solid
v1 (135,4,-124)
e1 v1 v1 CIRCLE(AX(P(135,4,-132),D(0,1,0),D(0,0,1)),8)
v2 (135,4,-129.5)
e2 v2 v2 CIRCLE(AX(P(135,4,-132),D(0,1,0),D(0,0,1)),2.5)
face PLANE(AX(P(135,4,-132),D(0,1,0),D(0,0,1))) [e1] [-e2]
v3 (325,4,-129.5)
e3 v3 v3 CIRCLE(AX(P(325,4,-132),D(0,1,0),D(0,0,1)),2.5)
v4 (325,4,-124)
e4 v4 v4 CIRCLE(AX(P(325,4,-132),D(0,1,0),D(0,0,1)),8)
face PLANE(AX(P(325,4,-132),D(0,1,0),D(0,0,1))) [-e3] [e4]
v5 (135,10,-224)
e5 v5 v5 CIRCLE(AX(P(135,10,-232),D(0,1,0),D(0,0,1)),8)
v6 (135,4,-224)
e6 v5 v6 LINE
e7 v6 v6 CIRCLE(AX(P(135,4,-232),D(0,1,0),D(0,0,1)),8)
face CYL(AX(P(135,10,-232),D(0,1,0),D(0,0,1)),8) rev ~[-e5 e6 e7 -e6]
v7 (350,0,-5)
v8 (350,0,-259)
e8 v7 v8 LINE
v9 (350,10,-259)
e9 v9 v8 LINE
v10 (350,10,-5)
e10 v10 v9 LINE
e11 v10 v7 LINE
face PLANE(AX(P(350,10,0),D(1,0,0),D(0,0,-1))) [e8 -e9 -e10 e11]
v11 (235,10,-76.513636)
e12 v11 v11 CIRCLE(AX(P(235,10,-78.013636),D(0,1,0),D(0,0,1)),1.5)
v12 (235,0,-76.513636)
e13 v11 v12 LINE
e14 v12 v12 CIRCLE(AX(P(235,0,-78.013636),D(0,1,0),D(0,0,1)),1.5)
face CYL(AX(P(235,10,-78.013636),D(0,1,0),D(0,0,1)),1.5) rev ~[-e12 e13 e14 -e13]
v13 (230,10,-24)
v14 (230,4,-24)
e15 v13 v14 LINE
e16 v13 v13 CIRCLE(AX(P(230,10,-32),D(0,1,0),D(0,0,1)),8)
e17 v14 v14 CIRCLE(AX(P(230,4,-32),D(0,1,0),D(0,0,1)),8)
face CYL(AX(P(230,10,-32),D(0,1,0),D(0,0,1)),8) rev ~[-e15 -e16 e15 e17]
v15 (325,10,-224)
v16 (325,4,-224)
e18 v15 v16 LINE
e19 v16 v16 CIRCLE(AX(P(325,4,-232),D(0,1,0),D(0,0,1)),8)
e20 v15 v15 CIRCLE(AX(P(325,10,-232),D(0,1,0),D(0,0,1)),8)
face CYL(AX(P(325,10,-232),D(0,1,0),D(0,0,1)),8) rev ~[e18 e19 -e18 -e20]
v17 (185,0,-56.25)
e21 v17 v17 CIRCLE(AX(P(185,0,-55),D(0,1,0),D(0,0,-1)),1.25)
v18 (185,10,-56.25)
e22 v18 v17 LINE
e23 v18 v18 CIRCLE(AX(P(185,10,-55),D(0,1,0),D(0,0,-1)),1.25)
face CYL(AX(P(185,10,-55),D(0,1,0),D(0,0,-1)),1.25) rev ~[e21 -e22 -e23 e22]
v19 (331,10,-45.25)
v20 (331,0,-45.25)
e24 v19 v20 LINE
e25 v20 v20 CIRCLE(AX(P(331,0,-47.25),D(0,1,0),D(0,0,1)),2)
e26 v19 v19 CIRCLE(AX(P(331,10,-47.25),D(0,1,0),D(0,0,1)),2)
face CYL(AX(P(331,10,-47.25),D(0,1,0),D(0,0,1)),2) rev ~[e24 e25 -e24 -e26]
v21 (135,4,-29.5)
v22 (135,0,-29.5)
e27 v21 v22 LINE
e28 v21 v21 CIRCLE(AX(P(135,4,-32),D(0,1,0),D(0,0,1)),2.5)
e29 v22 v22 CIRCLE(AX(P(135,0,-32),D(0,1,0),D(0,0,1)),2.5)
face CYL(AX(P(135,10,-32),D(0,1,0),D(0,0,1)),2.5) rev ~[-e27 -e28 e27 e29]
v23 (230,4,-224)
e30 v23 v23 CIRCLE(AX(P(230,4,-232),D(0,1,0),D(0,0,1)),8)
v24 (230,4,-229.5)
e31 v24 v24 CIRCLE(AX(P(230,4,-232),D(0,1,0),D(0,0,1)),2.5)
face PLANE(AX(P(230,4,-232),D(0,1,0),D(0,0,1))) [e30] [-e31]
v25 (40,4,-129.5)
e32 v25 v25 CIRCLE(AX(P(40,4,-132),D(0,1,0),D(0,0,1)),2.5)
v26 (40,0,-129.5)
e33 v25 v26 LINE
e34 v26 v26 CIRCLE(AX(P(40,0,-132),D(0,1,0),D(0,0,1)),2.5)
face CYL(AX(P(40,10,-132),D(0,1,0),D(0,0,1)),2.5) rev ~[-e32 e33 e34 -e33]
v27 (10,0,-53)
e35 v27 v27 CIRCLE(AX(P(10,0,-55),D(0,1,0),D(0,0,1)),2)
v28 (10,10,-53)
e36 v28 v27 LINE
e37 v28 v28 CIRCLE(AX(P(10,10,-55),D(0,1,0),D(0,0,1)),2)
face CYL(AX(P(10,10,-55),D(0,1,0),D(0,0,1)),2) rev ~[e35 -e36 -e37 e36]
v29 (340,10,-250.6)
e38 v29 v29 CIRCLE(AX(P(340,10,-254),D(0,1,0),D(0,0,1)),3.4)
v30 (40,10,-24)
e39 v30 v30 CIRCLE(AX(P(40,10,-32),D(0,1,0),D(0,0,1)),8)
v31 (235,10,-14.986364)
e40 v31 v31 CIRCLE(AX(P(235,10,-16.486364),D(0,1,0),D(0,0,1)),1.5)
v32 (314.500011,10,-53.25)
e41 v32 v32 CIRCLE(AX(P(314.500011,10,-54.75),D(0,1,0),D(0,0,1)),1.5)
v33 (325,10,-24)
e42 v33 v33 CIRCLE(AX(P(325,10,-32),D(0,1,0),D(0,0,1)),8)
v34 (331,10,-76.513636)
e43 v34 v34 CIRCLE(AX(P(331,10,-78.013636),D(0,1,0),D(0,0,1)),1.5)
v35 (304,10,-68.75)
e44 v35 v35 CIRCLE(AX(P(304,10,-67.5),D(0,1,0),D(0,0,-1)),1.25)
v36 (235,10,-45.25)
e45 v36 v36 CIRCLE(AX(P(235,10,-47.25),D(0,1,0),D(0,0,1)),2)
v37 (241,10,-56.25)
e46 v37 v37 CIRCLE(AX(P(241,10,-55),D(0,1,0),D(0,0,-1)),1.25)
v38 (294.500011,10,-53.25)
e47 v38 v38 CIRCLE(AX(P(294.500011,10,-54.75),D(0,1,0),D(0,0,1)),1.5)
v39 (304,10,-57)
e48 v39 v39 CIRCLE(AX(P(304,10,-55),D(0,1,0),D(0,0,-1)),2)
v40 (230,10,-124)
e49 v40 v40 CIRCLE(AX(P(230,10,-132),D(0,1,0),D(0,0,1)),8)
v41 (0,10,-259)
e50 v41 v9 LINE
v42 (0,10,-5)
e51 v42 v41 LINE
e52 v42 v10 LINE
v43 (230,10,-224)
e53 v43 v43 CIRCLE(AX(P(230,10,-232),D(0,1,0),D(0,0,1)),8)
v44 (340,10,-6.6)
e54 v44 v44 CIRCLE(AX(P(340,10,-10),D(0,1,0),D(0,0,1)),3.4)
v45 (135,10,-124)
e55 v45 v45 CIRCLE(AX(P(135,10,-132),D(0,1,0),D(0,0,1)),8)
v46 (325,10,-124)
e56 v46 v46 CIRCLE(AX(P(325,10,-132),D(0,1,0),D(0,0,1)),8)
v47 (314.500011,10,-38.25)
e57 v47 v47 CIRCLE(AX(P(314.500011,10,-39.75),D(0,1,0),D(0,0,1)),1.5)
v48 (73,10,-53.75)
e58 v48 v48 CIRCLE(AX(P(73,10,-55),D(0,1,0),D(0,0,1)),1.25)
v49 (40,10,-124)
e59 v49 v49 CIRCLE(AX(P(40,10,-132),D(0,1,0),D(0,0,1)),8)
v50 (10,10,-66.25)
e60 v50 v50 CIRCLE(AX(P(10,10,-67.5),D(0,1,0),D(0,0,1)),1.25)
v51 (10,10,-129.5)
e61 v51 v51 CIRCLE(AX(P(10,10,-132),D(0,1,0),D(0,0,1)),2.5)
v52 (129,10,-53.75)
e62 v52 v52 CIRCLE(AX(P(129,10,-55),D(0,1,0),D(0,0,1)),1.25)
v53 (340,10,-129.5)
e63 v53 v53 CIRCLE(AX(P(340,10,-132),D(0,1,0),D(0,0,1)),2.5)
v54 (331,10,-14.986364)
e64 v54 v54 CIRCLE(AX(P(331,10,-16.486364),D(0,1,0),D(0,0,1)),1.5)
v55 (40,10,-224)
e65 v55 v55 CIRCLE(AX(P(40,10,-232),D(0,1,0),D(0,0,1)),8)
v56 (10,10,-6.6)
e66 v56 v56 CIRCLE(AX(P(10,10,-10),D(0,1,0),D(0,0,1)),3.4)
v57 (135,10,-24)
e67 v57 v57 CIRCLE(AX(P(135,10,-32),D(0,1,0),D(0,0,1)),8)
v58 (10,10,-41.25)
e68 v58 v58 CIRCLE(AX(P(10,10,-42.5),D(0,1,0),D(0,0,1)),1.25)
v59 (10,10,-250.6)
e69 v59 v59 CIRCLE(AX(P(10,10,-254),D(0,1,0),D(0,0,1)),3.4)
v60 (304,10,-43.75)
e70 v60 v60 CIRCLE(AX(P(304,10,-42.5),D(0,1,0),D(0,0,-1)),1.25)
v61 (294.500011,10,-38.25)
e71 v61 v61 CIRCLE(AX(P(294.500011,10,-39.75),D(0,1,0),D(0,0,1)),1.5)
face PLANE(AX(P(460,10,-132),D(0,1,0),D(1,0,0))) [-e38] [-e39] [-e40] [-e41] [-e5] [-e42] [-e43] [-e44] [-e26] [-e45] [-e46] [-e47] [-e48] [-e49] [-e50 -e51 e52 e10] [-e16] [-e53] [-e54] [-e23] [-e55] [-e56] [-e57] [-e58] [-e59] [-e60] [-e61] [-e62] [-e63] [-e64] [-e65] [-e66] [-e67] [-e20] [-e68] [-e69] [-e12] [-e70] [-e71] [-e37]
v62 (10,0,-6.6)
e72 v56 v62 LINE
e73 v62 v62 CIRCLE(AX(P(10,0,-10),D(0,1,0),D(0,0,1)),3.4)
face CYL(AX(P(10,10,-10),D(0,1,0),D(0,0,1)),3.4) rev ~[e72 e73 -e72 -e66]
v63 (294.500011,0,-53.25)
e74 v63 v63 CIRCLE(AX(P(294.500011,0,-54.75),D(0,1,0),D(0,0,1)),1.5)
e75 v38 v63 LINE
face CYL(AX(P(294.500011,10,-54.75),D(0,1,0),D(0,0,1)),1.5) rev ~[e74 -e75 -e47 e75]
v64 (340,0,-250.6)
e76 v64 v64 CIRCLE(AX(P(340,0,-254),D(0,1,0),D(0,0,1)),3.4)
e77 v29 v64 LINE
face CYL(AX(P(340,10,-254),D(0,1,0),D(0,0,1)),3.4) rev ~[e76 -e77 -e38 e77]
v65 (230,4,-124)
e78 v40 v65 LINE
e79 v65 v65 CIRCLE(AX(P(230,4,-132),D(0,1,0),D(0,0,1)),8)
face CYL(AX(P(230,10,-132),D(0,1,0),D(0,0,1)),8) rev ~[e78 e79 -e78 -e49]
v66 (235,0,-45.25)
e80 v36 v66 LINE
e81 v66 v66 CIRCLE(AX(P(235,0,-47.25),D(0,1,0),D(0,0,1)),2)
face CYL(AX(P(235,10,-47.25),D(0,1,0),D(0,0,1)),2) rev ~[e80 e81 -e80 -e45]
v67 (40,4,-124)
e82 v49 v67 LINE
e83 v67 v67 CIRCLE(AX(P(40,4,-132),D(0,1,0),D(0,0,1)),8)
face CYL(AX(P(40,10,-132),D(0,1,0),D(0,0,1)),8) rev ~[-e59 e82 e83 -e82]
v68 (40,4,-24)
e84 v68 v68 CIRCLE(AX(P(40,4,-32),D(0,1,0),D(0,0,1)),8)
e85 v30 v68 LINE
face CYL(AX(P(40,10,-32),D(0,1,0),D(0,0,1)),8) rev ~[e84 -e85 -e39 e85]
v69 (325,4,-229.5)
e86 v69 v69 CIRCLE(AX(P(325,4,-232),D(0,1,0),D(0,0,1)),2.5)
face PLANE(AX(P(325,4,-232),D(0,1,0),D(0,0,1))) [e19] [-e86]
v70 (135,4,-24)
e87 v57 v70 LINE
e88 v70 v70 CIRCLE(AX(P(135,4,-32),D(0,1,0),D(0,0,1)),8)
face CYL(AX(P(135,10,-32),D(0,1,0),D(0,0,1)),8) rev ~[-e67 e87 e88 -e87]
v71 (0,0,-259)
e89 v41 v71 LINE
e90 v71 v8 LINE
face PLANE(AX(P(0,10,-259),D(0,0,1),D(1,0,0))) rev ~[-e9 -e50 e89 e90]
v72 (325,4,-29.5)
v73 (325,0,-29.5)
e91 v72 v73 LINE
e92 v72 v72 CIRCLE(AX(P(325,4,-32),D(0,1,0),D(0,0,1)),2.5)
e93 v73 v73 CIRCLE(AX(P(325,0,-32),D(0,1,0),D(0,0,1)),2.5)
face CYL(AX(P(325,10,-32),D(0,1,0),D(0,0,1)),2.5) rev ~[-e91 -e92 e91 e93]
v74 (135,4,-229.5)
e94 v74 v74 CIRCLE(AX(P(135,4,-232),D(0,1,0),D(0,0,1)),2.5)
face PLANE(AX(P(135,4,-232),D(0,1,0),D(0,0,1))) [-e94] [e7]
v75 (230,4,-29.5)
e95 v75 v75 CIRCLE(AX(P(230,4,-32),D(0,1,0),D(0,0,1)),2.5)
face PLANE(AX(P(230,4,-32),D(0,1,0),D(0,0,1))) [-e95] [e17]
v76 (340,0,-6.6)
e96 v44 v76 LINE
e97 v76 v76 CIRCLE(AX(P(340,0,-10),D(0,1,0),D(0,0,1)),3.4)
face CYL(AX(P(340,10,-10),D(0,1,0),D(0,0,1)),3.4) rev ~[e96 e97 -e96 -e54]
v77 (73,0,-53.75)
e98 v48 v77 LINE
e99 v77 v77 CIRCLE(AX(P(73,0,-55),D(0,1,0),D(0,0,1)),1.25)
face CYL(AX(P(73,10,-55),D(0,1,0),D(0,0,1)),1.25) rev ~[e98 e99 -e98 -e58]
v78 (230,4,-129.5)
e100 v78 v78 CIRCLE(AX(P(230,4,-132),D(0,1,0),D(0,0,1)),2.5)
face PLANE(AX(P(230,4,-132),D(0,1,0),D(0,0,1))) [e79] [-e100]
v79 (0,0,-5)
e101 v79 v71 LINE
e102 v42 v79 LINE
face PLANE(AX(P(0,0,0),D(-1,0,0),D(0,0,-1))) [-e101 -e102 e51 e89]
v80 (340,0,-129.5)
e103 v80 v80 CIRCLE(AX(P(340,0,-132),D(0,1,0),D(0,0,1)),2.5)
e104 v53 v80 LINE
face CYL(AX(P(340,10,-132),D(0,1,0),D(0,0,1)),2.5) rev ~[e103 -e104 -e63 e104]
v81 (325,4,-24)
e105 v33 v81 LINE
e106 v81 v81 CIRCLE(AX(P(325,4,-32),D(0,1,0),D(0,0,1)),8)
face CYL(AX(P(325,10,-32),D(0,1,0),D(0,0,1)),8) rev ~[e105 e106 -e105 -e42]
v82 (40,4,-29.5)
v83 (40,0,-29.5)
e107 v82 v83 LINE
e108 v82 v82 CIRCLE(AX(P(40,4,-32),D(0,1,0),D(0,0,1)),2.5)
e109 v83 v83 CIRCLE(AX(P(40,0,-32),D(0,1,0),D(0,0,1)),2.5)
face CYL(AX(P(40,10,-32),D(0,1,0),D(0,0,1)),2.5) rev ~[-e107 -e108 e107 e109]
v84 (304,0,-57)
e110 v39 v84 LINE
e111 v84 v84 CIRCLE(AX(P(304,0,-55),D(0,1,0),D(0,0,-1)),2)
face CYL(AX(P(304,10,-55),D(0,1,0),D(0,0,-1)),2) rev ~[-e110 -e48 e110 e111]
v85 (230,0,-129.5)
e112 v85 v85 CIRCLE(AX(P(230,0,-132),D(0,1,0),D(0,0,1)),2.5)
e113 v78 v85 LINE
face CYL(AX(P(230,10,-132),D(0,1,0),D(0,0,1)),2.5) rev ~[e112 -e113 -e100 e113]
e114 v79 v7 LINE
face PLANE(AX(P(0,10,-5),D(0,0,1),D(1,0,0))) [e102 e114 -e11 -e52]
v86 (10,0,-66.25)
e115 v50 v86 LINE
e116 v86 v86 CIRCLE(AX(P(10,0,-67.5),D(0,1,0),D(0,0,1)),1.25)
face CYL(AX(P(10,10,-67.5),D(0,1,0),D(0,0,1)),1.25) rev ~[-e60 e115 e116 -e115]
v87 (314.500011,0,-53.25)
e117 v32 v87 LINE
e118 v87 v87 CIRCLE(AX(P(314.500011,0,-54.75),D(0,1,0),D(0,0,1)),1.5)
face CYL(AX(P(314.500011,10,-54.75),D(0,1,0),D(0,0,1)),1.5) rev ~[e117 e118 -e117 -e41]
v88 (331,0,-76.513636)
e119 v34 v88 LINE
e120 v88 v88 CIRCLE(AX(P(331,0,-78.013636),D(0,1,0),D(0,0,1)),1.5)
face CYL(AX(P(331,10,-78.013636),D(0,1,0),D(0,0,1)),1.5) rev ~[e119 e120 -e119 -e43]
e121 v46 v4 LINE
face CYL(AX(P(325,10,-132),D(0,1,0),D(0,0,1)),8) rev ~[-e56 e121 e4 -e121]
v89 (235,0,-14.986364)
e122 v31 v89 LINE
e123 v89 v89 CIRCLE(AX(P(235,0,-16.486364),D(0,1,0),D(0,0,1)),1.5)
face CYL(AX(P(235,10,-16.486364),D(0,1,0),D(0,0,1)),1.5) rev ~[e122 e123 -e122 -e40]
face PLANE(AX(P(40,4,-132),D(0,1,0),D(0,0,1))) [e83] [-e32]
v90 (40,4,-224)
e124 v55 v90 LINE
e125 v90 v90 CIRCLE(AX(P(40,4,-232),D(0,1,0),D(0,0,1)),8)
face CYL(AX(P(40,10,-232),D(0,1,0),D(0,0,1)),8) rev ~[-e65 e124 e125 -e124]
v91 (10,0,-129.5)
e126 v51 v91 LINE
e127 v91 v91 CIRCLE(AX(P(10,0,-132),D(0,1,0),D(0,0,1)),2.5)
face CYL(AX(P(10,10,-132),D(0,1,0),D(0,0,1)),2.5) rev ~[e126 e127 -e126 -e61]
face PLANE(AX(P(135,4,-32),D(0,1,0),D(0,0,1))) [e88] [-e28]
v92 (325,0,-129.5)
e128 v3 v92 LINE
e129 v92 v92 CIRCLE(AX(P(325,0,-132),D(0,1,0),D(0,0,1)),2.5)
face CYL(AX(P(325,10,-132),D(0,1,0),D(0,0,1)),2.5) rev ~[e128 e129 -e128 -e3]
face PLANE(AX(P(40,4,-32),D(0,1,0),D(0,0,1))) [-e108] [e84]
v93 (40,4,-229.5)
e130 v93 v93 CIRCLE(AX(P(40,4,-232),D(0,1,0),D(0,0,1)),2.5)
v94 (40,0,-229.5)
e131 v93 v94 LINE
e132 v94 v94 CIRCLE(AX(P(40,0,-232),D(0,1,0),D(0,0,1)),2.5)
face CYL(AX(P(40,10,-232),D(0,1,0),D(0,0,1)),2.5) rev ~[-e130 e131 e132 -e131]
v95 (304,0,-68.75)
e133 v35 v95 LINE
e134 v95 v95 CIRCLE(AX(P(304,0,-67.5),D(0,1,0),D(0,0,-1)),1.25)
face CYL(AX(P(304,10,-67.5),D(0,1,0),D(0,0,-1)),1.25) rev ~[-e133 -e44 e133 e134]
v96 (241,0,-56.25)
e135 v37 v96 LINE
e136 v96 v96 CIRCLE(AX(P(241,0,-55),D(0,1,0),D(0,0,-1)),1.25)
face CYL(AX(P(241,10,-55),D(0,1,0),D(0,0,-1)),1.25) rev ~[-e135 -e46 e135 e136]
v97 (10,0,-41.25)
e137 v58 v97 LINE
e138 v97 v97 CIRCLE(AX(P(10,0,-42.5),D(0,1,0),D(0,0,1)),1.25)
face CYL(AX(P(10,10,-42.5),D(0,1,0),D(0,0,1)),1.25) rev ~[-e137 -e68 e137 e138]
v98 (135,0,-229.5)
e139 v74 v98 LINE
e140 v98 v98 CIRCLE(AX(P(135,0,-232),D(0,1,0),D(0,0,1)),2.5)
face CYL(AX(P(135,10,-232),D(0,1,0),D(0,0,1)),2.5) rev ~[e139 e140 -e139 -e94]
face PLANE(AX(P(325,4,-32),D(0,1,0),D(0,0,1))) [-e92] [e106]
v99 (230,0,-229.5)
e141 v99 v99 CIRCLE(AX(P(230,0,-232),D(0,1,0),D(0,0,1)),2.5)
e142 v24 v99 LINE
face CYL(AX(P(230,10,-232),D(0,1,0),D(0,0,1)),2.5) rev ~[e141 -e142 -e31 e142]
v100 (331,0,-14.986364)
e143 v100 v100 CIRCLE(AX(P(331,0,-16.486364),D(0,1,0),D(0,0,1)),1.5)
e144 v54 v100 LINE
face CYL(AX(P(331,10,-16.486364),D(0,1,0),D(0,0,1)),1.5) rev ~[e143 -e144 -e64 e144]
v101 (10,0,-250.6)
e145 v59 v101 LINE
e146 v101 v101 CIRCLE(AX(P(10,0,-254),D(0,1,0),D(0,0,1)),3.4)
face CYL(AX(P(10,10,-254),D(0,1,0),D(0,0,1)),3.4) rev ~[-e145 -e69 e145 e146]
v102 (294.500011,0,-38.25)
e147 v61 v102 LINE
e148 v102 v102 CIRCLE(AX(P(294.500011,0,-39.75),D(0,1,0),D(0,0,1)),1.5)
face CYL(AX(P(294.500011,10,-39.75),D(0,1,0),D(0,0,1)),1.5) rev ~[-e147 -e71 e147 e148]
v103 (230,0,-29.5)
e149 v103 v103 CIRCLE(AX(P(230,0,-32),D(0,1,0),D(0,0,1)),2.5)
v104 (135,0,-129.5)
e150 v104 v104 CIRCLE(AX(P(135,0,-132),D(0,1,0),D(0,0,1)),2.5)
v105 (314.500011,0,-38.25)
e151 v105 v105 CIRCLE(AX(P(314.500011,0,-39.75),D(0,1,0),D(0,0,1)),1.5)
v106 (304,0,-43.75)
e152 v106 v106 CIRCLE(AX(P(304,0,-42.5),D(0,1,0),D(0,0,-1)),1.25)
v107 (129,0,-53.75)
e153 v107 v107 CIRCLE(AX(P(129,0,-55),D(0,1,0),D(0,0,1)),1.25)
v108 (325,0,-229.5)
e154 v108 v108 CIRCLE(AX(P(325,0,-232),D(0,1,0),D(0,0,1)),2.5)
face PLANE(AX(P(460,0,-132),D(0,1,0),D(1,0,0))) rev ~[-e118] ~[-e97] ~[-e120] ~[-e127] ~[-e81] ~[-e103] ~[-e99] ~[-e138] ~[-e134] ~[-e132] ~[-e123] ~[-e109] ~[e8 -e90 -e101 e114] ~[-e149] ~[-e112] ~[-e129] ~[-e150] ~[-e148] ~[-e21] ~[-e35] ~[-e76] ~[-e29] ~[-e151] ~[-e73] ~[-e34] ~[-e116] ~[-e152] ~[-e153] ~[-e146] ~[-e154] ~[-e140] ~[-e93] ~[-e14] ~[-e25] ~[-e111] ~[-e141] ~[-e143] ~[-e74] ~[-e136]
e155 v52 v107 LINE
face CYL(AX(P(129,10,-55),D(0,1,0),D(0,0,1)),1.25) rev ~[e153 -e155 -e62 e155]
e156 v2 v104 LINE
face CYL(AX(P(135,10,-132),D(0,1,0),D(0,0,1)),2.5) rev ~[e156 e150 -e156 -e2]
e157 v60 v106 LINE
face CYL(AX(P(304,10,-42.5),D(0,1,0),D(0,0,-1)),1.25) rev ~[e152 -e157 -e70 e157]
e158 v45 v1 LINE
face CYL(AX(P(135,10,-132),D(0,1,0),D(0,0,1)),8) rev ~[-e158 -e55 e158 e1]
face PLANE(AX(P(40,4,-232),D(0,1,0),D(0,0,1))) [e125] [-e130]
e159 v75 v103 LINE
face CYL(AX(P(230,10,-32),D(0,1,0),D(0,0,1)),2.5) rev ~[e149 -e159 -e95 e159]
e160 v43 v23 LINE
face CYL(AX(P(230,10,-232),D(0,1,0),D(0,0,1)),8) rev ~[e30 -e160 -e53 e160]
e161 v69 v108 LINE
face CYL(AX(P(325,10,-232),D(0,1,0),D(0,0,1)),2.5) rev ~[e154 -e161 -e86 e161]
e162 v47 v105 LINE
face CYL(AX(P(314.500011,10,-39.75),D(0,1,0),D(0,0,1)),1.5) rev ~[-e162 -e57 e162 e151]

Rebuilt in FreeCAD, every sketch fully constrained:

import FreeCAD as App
import Part
import Sketcher
from FreeCAD import Vector

doc = App.newDocument("Part")
body = doc.addObject("PartDesign::Body", "Body")

# Sketch on XZ plane
sketch1 = doc.addObject("Sketcher::SketchObject", "Sketch")
body.addObject(sketch1)
sketch1.AttachmentSupport = (doc.XZ_Plane, [""])
sketch1.MapMode = "FlatFace"
sketch1.addGeometry(Part.LineSegment(Vector(0, -264, 0), Vector(0, 0, 0)), False)
sketch1.addGeometry(Part.LineSegment(Vector(0, 0, 0), Vector(920, 0, 0)), False)
sketch1.addGeometry(Part.LineSegment(Vector(920, 0, 0), Vector(920, -264, 0)), False)
sketch1.addGeometry(Part.LineSegment(Vector(920, -264, 0), Vector(0, -264, 0)), False)
sketch1.addConstraint(Sketcher.Constraint("Coincident", 0, 2, 1, 1))
sketch1.addConstraint(Sketcher.Constraint("Coincident", 1, 2, 2, 1))
sketch1.addConstraint(Sketcher.Constraint("Coincident", 2, 2, 3, 1))
sketch1.addConstraint(Sketcher.Constraint("Coincident", 3, 2, 0, 1))
sketch1.addConstraint(Sketcher.Constraint("Vertical", 0))
sketch1.addConstraint(Sketcher.Constraint("Horizontal", 1))
sketch1.addConstraint(Sketcher.Constraint("Vertical", 2))
sketch1.addConstraint(Sketcher.Constraint("Horizontal", 3))
sketch1.addConstraint(Sketcher.Constraint("Coincident", 0, 2, -1, 1))
sketch1.addConstraint(Sketcher.Constraint("DistanceX", 1, 1, 1, 2, 920.0))
sketch1.addConstraint(Sketcher.Constraint("DistanceY", 0, 1, 0, 2, 264.0))
pad1 = doc.addObject("PartDesign::Pad", "Pad")
body.addObject(pad1)
pad1.Profile = sketch1
pad1.Length = 10
pad1.Reversed = True

# Sketch on XZ plane
sketch2 = doc.addObject("Sketcher::SketchObject", "Sketch001")
body.addObject(sketch2)
sketch2.AttachmentSupport = (doc.XZ_Plane, [""])
sketch2.MapMode = "FlatFace"
sketch2.AttachmentOffset = App.Placement(Vector(0, 0, -10), App.Rotation())
sketch2.addGeometry(Part.Circle(Vector(40, -32, 0), Vector(0, 0, 1), 2.5), False)
sketch2.addGeometry(Part.Circle(Vector(135, -32, 0), Vector(0, 0, 1), 2.5), False)
sketch2.addGeometry(Part.Circle(Vector(230, -32, 0), Vector(0, 0, 1), 2.5), False)
sketch2.addGeometry(Part.Circle(Vector(325, -32, 0), Vector(0, 0, 1), 2.5), False)
sketch2.addGeometry(Part.Circle(Vector(420, -32, 0), Vector(0, 0, 1), 2.5), False)
sketch2.addGeometry(Part.Circle(Vector(515, -32, 0), Vector(0, 0, 1), 2.5), False)
sketch2.addGeometry(Part.Circle(Vector(610, -32, 0), Vector(0, 0, 1), 2.5), False)
sketch2.addGeometry(Part.Circle(Vector(705, -32, 0), Vector(0, 0, 1), 2.5), False)
sketch2.addGeometry(Part.Circle(Vector(800, -32, 0), Vector(0, 0, 1), 2.5), False)
sketch2.addGeometry(Part.Circle(Vector(895, -32, 0), Vector(0, 0, 1), 2.5), False)
sketch2.addGeometry(Part.Circle(Vector(135, -132, 0), Vector(0, 0, 1), 2.5), False)
sketch2.addGeometry(Part.Circle(Vector(230, -132, 0), Vector(0, 0, 1), 2.5), False)
sketch2.addGeometry(Part.Circle(Vector(325, -132, 0), Vector(0, 0, 1), 2.5), False)
sketch2.addGeometry(Part.Circle(Vector(420, -132, 0), Vector(0, 0, 1), 2.5), False)
sketch2.addGeometry(Part.Circle(Vector(515, -132, 0), Vector(0, 0, 1), 2.5), False)
sketch2.addGeometry(Part.Circle(Vector(610, -132, 0), Vector(0, 0, 1), 2.5), False)
sketch2.addGeometry(Part.Circle(Vector(705, -132, 0), Vector(0, 0, 1), 2.5), False)
sketch2.addGeometry(Part.Circle(Vector(800, -132, 0), Vector(0, 0, 1), 2.5), False)
sketch2.addGeometry(Part.Circle(Vector(895, -132, 0), Vector(0, 0, 1), 2.5), False)
sketch2.addGeometry(Part.Circle(Vector(135, -232, 0), Vector(0, 0, 1), 2.5), False)
sketch2.addGeometry(Part.Circle(Vector(230, -232, 0), Vector(0, 0, 1), 2.5), False)
sketch2.addGeometry(Part.Circle(Vector(325, -232, 0), Vector(0, 0, 1), 2.5), False)
sketch2.addGeometry(Part.Circle(Vector(420, -232, 0), Vector(0, 0, 1), 2.5), False)
sketch2.addGeometry(Part.Circle(Vector(515, -232, 0), Vector(0, 0, 1), 2.5), False)
sketch2.addGeometry(Part.Circle(Vector(610, -232, 0), Vector(0, 0, 1), 2.5), False)
sketch2.addGeometry(Part.Circle(Vector(705, -232, 0), Vector(0, 0, 1), 2.5), False)
sketch2.addGeometry(Part.Circle(Vector(800, -232, 0), Vector(0, 0, 1), 2.5), False)
sketch2.addGeometry(Part.Circle(Vector(895, -232, 0), Vector(0, 0, 1), 2.5), False)
sketch2.addGeometry(Part.Circle(Vector(40, -132, 0), Vector(0, 0, 1), 2.5), False)
sketch2.addGeometry(Part.Circle(Vector(40, -232, 0), Vector(0, 0, 1), 2.5), False)
sketch2.addConstraint(Sketcher.Constraint("Equal", 0, 1))
sketch2.addConstraint(Sketcher.Constraint("Equal", 1, 2))
sketch2.addConstraint(Sketcher.Constraint("Equal", 2, 3))
sketch2.addConstraint(Sketcher.Constraint("Equal", 3, 4))
sketch2.addConstraint(Sketcher.Constraint("Equal", 4, 5))
sketch2.addConstraint(Sketcher.Constraint("Equal", 5, 6))
sketch2.addConstraint(Sketcher.Constraint("Equal", 6, 7))
sketch2.addConstraint(Sketcher.Constraint("Equal", 7, 8))
sketch2.addConstraint(Sketcher.Constraint("Equal", 8, 9))
sketch2.addConstraint(Sketcher.Constraint("Equal", 9, 10))
sketch2.addConstraint(Sketcher.Constraint("Equal", 10, 11))
sketch2.addConstraint(Sketcher.Constraint("Equal", 11, 12))
sketch2.addConstraint(Sketcher.Constraint("Equal", 12, 13))
sketch2.addConstraint(Sketcher.Constraint("Equal", 13, 14))
sketch2.addConstraint(Sketcher.Constraint("Equal", 14, 15))
sketch2.addConstraint(Sketcher.Constraint("Equal", 15, 16))
sketch2.addConstraint(Sketcher.Constraint("Equal", 16, 17))
sketch2.addConstraint(Sketcher.Constraint("Equal", 17, 18))
sketch2.addConstraint(Sketcher.Constraint("Equal", 18, 19))
sketch2.addConstraint(Sketcher.Constraint("Equal", 19, 20))
sketch2.addConstraint(Sketcher.Constraint("Equal", 20, 21))
sketch2.addConstraint(Sketcher.Constraint("Equal", 21, 22))
sketch2.addConstraint(Sketcher.Constraint("Equal", 22, 23))
sketch2.addConstraint(Sketcher.Constraint("Equal", 23, 24))
sketch2.addConstraint(Sketcher.Constraint("Equal", 24, 25))
sketch2.addConstraint(Sketcher.Constraint("Equal", 25, 26))
sketch2.addConstraint(Sketcher.Constraint("Equal", 26, 27))
sketch2.addConstraint(Sketcher.Constraint("Equal", 27, 28))
sketch2.addConstraint(Sketcher.Constraint("Equal", 28, 29))
sketch2.addConstraint(Sketcher.Constraint("Horizontal", 0, 3, 1, 3))
sketch2.addConstraint(Sketcher.Constraint("Horizontal", 1, 3, 2, 3))
sketch2.addConstraint(Sketcher.Constraint("Horizontal", 2, 3, 3, 3))
sketch2.addConstraint(Sketcher.Constraint("Horizontal", 3, 3, 4, 3))
sketch2.addConstraint(Sketcher.Constraint("Horizontal", 4, 3, 5, 3))
sketch2.addConstraint(Sketcher.Constraint("Horizontal", 5, 3, 6, 3))
sketch2.addConstraint(Sketcher.Constraint("Horizontal", 6, 3, 7, 3))
sketch2.addConstraint(Sketcher.Constraint("Horizontal", 7, 3, 8, 3))
sketch2.addConstraint(Sketcher.Constraint("Horizontal", 8, 3, 9, 3))
sketch2.addConstraint(Sketcher.Constraint("Horizontal", 10, 3, 11, 3))
sketch2.addConstraint(Sketcher.Constraint("Horizontal", 11, 3, 12, 3))
sketch2.addConstraint(Sketcher.Constraint("Horizontal", 12, 3, 13, 3))
sketch2.addConstraint(Sketcher.Constraint("Horizontal", 13, 3, 14, 3))
sketch2.addConstraint(Sketcher.Constraint("Horizontal", 14, 3, 15, 3))
sketch2.addConstraint(Sketcher.Constraint("Horizontal", 15, 3, 16, 3))
sketch2.addConstraint(Sketcher.Constraint("Horizontal", 16, 3, 17, 3))
sketch2.addConstraint(Sketcher.Constraint("Horizontal", 17, 3, 18, 3))
sketch2.addConstraint(Sketcher.Constraint("Horizontal", 19, 3, 20, 3))
sketch2.addConstraint(Sketcher.Constraint("Horizontal", 20, 3, 21, 3))
sketch2.addConstraint(Sketcher.Constraint("Horizontal", 21, 3, 22, 3))
sketch2.addConstraint(Sketcher.Constraint("Horizontal", 22, 3, 23, 3))
sketch2.addConstraint(Sketcher.Constraint("Horizontal", 23, 3, 24, 3))
sketch2.addConstraint(Sketcher.Constraint("Horizontal", 24, 3, 25, 3))
sketch2.addConstraint(Sketcher.Constraint("Horizontal", 25, 3, 26, 3))
sketch2.addConstraint(Sketcher.Constraint("Horizontal", 26, 3, 27, 3))
sketch2.addConstraint(Sketcher.Constraint("Horizontal", 18, 3, 28, 3))
sketch2.addConstraint(Sketcher.Constraint("Horizontal", 27, 3, 29, 3))
sketch2.addConstraint(Sketcher.Constraint("Vertical", 1, 3, 10, 3))
sketch2.addConstraint(Sketcher.Constraint("Vertical", 2, 3, 11, 3))
sketch2.addConstraint(Sketcher.Constraint("Vertical", 3, 3, 12, 3))
sketch2.addConstraint(Sketcher.Constraint("Vertical", 4, 3, 13, 3))
sketch2.addConstraint(Sketcher.Constraint("Vertical", 5, 3, 14, 3))
sketch2.addConstraint(Sketcher.Constraint("Vertical", 6, 3, 15, 3))
sketch2.addConstraint(Sketcher.Constraint("Vertical", 7, 3, 16, 3))
sketch2.addConstraint(Sketcher.Constraint("Vertical", 8, 3, 17, 3))
sketch2.addConstraint(Sketcher.Constraint("Vertical", 9, 3, 18, 3))
sketch2.addConstraint(Sketcher.Constraint("Vertical", 10, 3, 19, 3))
sketch2.addConstraint(Sketcher.Constraint("Vertical", 11, 3, 20, 3))
sketch2.addConstraint(Sketcher.Constraint("Vertical", 12, 3, 21, 3))
sketch2.addConstraint(Sketcher.Constraint("Vertical", 13, 3, 22, 3))
sketch2.addConstraint(Sketcher.Constraint("Vertical", 14, 3, 23, 3))
sketch2.addConstraint(Sketcher.Constraint("Vertical", 15, 3, 24, 3))
sketch2.addConstraint(Sketcher.Constraint("Vertical", 16, 3, 25, 3))
sketch2.addConstraint(Sketcher.Constraint("Vertical", 17, 3, 26, 3))
sketch2.addConstraint(Sketcher.Constraint("Vertical", 18, 3, 27, 3))
sketch2.addConstraint(Sketcher.Constraint("Vertical", 0, 3, 28, 3))
sketch2.addConstraint(Sketcher.Constraint("Vertical", 28, 3, 29, 3))
sketch2.addConstraint(Sketcher.Constraint("Diameter", 0, 5.0))
sketch2.addConstraint(Sketcher.Constraint("DistanceX", -1, 1, 0, 3, 40.0))
sketch2.addConstraint(Sketcher.Constraint("DistanceY", 0, 3, -1, 1, 32.0))
sketch2.addConstraint(Sketcher.Constraint("DistanceX", -1, 1, 1, 3, 135.0))
sketch2.addConstraint(Sketcher.Constraint("DistanceX", -1, 1, 2, 3, 230.0))
sketch2.addConstraint(Sketcher.Constraint("DistanceX", -1, 1, 3, 3, 325.0))
sketch2.addConstraint(Sketcher.Constraint("DistanceX", -1, 1, 4, 3, 420.0))
sketch2.addConstraint(Sketcher.Constraint("DistanceX", -1, 1, 5, 3, 515.0))
sketch2.addConstraint(Sketcher.Constraint("DistanceX", -1, 1, 6, 3, 610.0))
sketch2.addConstraint(Sketcher.Constraint("DistanceX", -1, 1, 7, 3, 705.0))
sketch2.addConstraint(Sketcher.Constraint("DistanceX", -1, 1, 8, 3, 800.0))
sketch2.addConstraint(Sketcher.Constraint("DistanceX", -1, 1, 9, 3, 895.0))
sketch2.addConstraint(Sketcher.Constraint("DistanceY", 10, 3, -1, 1, 132.0))
sketch2.addConstraint(Sketcher.Constraint("DistanceY", 19, 3, -1, 1, 232.0))
pocket1 = doc.addObject("PartDesign::Pocket", "Pocket")
body.addObject(pocket1)
pocket1.Profile = sketch2
pocket1.Length = 18
pocket1.Reversed = True

# Sketch on XZ plane
sketch3 = doc.addObject("Sketcher::SketchObject", "Sketch002")
body.addObject(sketch3)
sketch3.AttachmentSupport = (doc.XZ_Plane, [""])
sketch3.MapMode = "FlatFace"
sketch3.AttachmentOffset = App.Placement(Vector(0, 0, -10), App.Rotation())
sketch3.addGeometry(Part.Circle(Vector(40, -32, 0), Vector(0, 0, 1), 8), False)
sketch3.addGeometry(Part.Circle(Vector(135, -32, 0), Vector(0, 0, 1), 8), False)
sketch3.addGeometry(Part.Circle(Vector(230, -32, 0), Vector(0, 0, 1), 8), False)
sketch3.addGeometry(Part.Circle(Vector(325, -32, 0), Vector(0, 0, 1), 8), False)
sketch3.addGeometry(Part.Circle(Vector(420, -32, 0), Vector(0, 0, 1), 8), False)
sketch3.addGeometry(Part.Circle(Vector(515, -32, 0), Vector(0, 0, 1), 8), False)
sketch3.addGeometry(Part.Circle(Vector(610, -32, 0), Vector(0, 0, 1), 8), False)
sketch3.addGeometry(Part.Circle(Vector(705, -32, 0), Vector(0, 0, 1), 8), False)
sketch3.addGeometry(Part.Circle(Vector(800, -32, 0), Vector(0, 0, 1), 8), False)
sketch3.addGeometry(Part.Circle(Vector(895, -32, 0), Vector(0, 0, 1), 8), False)
sketch3.addGeometry(Part.Circle(Vector(135, -132, 0), Vector(0, 0, 1), 8), False)
sketch3.addGeometry(Part.Circle(Vector(230, -132, 0), Vector(0, 0, 1), 8), False)
sketch3.addGeometry(Part.Circle(Vector(325, -132, 0), Vector(0, 0, 1), 8), False)
sketch3.addGeometry(Part.Circle(Vector(420, -132, 0), Vector(0, 0, 1), 8), False)
sketch3.addGeometry(Part.Circle(Vector(515, -132, 0), Vector(0, 0, 1), 8), False)
sketch3.addGeometry(Part.Circle(Vector(610, -132, 0), Vector(0, 0, 1), 8), False)
sketch3.addGeometry(Part.Circle(Vector(705, -132, 0), Vector(0, 0, 1), 8), False)
sketch3.addGeometry(Part.Circle(Vector(800, -132, 0), Vector(0, 0, 1), 8), False)
sketch3.addGeometry(Part.Circle(Vector(895, -132, 0), Vector(0, 0, 1), 8), False)
sketch3.addGeometry(Part.Circle(Vector(135, -232, 0), Vector(0, 0, 1), 8), False)
sketch3.addGeometry(Part.Circle(Vector(230, -232, 0), Vector(0, 0, 1), 8), False)
sketch3.addGeometry(Part.Circle(Vector(325, -232, 0), Vector(0, 0, 1), 8), False)
sketch3.addGeometry(Part.Circle(Vector(420, -232, 0), Vector(0, 0, 1), 8), False)
sketch3.addGeometry(Part.Circle(Vector(515, -232, 0), Vector(0, 0, 1), 8), False)
sketch3.addGeometry(Part.Circle(Vector(610, -232, 0), Vector(0, 0, 1), 8), False)
sketch3.addGeometry(Part.Circle(Vector(705, -232, 0), Vector(0, 0, 1), 8), False)
sketch3.addGeometry(Part.Circle(Vector(800, -232, 0), Vector(0, 0, 1), 8), False)
sketch3.addGeometry(Part.Circle(Vector(895, -232, 0), Vector(0, 0, 1), 8), False)
sketch3.addGeometry(Part.Circle(Vector(40, -132, 0), Vector(0, 0, 1), 8), False)
sketch3.addGeometry(Part.Circle(Vector(40, -232, 0), Vector(0, 0, 1), 8), False)
sketch3.addConstraint(Sketcher.Constraint("Equal", 0, 1))
sketch3.addConstraint(Sketcher.Constraint("Equal", 1, 2))
sketch3.addConstraint(Sketcher.Constraint("Equal", 2, 3))
sketch3.addConstraint(Sketcher.Constraint("Equal", 3, 4))
sketch3.addConstraint(Sketcher.Constraint("Equal", 4, 5))
sketch3.addConstraint(Sketcher.Constraint("Equal", 5, 6))
sketch3.addConstraint(Sketcher.Constraint("Equal", 6, 7))
sketch3.addConstraint(Sketcher.Constraint("Equal", 7, 8))
sketch3.addConstraint(Sketcher.Constraint("Equal", 8, 9))
sketch3.addConstraint(Sketcher.Constraint("Equal", 9, 10))
sketch3.addConstraint(Sketcher.Constraint("Equal", 10, 11))
sketch3.addConstraint(Sketcher.Constraint("Equal", 11, 12))
sketch3.addConstraint(Sketcher.Constraint("Equal", 12, 13))
sketch3.addConstraint(Sketcher.Constraint("Equal", 13, 14))
sketch3.addConstraint(Sketcher.Constraint("Equal", 14, 15))
sketch3.addConstraint(Sketcher.Constraint("Equal", 15, 16))
sketch3.addConstraint(Sketcher.Constraint("Equal", 16, 17))
sketch3.addConstraint(Sketcher.Constraint("Equal", 17, 18))
sketch3.addConstraint(Sketcher.Constraint("Equal", 18, 19))
sketch3.addConstraint(Sketcher.Constraint("Equal", 19, 20))
sketch3.addConstraint(Sketcher.Constraint("Equal", 20, 21))
sketch3.addConstraint(Sketcher.Constraint("Equal", 21, 22))
sketch3.addConstraint(Sketcher.Constraint("Equal", 22, 23))
sketch3.addConstraint(Sketcher.Constraint("Equal", 23, 24))
sketch3.addConstraint(Sketcher.Constraint("Equal", 24, 25))
sketch3.addConstraint(Sketcher.Constraint("Equal", 25, 26))
sketch3.addConstraint(Sketcher.Constraint("Equal", 26, 27))
sketch3.addConstraint(Sketcher.Constraint("Equal", 27, 28))
sketch3.addConstraint(Sketcher.Constraint("Equal", 28, 29))
sketch3.addConstraint(Sketcher.Constraint("Horizontal", 0, 3, 1, 3))
sketch3.addConstraint(Sketcher.Constraint("Horizontal", 1, 3, 2, 3))
sketch3.addConstraint(Sketcher.Constraint("Horizontal", 2, 3, 3, 3))
sketch3.addConstraint(Sketcher.Constraint("Horizontal", 3, 3, 4, 3))
sketch3.addConstraint(Sketcher.Constraint("Horizontal", 4, 3, 5, 3))
sketch3.addConstraint(Sketcher.Constraint("Horizontal", 5, 3, 6, 3))
sketch3.addConstraint(Sketcher.Constraint("Horizontal", 6, 3, 7, 3))
sketch3.addConstraint(Sketcher.Constraint("Horizontal", 7, 3, 8, 3))
sketch3.addConstraint(Sketcher.Constraint("Horizontal", 8, 3, 9, 3))
sketch3.addConstraint(Sketcher.Constraint("Horizontal", 10, 3, 11, 3))
sketch3.addConstraint(Sketcher.Constraint("Horizontal", 11, 3, 12, 3))
sketch3.addConstraint(Sketcher.Constraint("Horizontal", 12, 3, 13, 3))
sketch3.addConstraint(Sketcher.Constraint("Horizontal", 13, 3, 14, 3))
sketch3.addConstraint(Sketcher.Constraint("Horizontal", 14, 3, 15, 3))
sketch3.addConstraint(Sketcher.Constraint("Horizontal", 15, 3, 16, 3))
sketch3.addConstraint(Sketcher.Constraint("Horizontal", 16, 3, 17, 3))
sketch3.addConstraint(Sketcher.Constraint("Horizontal", 17, 3, 18, 3))
sketch3.addConstraint(Sketcher.Constraint("Horizontal", 19, 3, 20, 3))
sketch3.addConstraint(Sketcher.Constraint("Horizontal", 20, 3, 21, 3))
sketch3.addConstraint(Sketcher.Constraint("Horizontal", 21, 3, 22, 3))
sketch3.addConstraint(Sketcher.Constraint("Horizontal", 22, 3, 23, 3))
sketch3.addConstraint(Sketcher.Constraint("Horizontal", 23, 3, 24, 3))
sketch3.addConstraint(Sketcher.Constraint("Horizontal", 24, 3, 25, 3))
sketch3.addConstraint(Sketcher.Constraint("Horizontal", 25, 3, 26, 3))
sketch3.addConstraint(Sketcher.Constraint("Horizontal", 26, 3, 27, 3))
sketch3.addConstraint(Sketcher.Constraint("Horizontal", 18, 3, 28, 3))
sketch3.addConstraint(Sketcher.Constraint("Horizontal", 27, 3, 29, 3))
sketch3.addConstraint(Sketcher.Constraint("Vertical", 1, 3, 10, 3))
sketch3.addConstraint(Sketcher.Constraint("Vertical", 2, 3, 11, 3))
sketch3.addConstraint(Sketcher.Constraint("Vertical", 3, 3, 12, 3))
sketch3.addConstraint(Sketcher.Constraint("Vertical", 4, 3, 13, 3))
sketch3.addConstraint(Sketcher.Constraint("Vertical", 5, 3, 14, 3))
sketch3.addConstraint(Sketcher.Constraint("Vertical", 6, 3, 15, 3))
sketch3.addConstraint(Sketcher.Constraint("Vertical", 7, 3, 16, 3))
sketch3.addConstraint(Sketcher.Constraint("Vertical", 8, 3, 17, 3))
sketch3.addConstraint(Sketcher.Constraint("Vertical", 9, 3, 18, 3))
sketch3.addConstraint(Sketcher.Constraint("Vertical", 10, 3, 19, 3))
sketch3.addConstraint(Sketcher.Constraint("Vertical", 11, 3, 20, 3))
sketch3.addConstraint(Sketcher.Constraint("Vertical", 12, 3, 21, 3))
sketch3.addConstraint(Sketcher.Constraint("Vertical", 13, 3, 22, 3))
sketch3.addConstraint(Sketcher.Constraint("Vertical", 14, 3, 23, 3))
sketch3.addConstraint(Sketcher.Constraint("Vertical", 15, 3, 24, 3))
sketch3.addConstraint(Sketcher.Constraint("Vertical", 16, 3, 25, 3))
sketch3.addConstraint(Sketcher.Constraint("Vertical", 17, 3, 26, 3))
sketch3.addConstraint(Sketcher.Constraint("Vertical", 18, 3, 27, 3))
sketch3.addConstraint(Sketcher.Constraint("Vertical", 0, 3, 28, 3))
sketch3.addConstraint(Sketcher.Constraint("Vertical", 28, 3, 29, 3))
sketch3.addConstraint(Sketcher.Constraint("Diameter", 0, 16.0))
sketch3.addConstraint(Sketcher.Constraint("DistanceX", -1, 1, 0, 3, 40.0))
sketch3.addConstraint(Sketcher.Constraint("DistanceY", 0, 3, -1, 1, 32.0))
sketch3.addConstraint(Sketcher.Constraint("DistanceX", -1, 1, 1, 3, 135.0))
sketch3.addConstraint(Sketcher.Constraint("DistanceX", -1, 1, 2, 3, 230.0))
sketch3.addConstraint(Sketcher.Constraint("DistanceX", -1, 1, 3, 3, 325.0))
sketch3.addConstraint(Sketcher.Constraint("DistanceX", -1, 1, 4, 3, 420.0))
sketch3.addConstraint(Sketcher.Constraint("DistanceX", -1, 1, 5, 3, 515.0))
sketch3.addConstraint(Sketcher.Constraint("DistanceX", -1, 1, 6, 3, 610.0))
sketch3.addConstraint(Sketcher.Constraint("DistanceX", -1, 1, 7, 3, 705.0))
sketch3.addConstraint(Sketcher.Constraint("DistanceX", -1, 1, 8, 3, 800.0))
sketch3.addConstraint(Sketcher.Constraint("DistanceX", -1, 1, 9, 3, 895.0))
sketch3.addConstraint(Sketcher.Constraint("DistanceY", 10, 3, -1, 1, 132.0))
sketch3.addConstraint(Sketcher.Constraint("DistanceY", 19, 3, -1, 1, 232.0))
pocket2 = doc.addObject("PartDesign::Pocket", "Pocket001")
body.addObject(pocket2)
pocket2.Profile = sketch3
pocket2.Length = 6
pocket2.Reversed = True

# Sketch on XZ plane
sketch4 = doc.addObject("Sketcher::SketchObject", "Sketch003")
body.addObject(sketch4)
sketch4.AttachmentSupport = (doc.XZ_Plane, [""])
sketch4.MapMode = "FlatFace"
sketch4.AttachmentOffset = App.Placement(Vector(0, 0, -10), App.Rotation())
sketch4.addGeometry(Part.LineSegment(Vector(350, -264, 0), Vector(350, 0, 0)), False)
sketch4.addGeometry(Part.LineSegment(Vector(350, 0, 0), Vector(920, 0, 0)), False)
sketch4.addGeometry(Part.LineSegment(Vector(920, 0, 0), Vector(920, -264, 0)), False)
sketch4.addGeometry(Part.LineSegment(Vector(920, -264, 0), Vector(350, -264, 0)), False)
sketch4.addConstraint(Sketcher.Constraint("Coincident", 0, 2, 1, 1))
sketch4.addConstraint(Sketcher.Constraint("Coincident", 1, 2, 2, 1))
sketch4.addConstraint(Sketcher.Constraint("Coincident", 2, 2, 3, 1))
sketch4.addConstraint(Sketcher.Constraint("Coincident", 3, 2, 0, 1))
sketch4.addConstraint(Sketcher.Constraint("Vertical", 0))
sketch4.addConstraint(Sketcher.Constraint("Horizontal", 1))
sketch4.addConstraint(Sketcher.Constraint("Vertical", 2))
sketch4.addConstraint(Sketcher.Constraint("Horizontal", 3))
sketch4.addConstraint(Sketcher.Constraint("PointOnObject", 0, 2, -1))
sketch4.addConstraint(Sketcher.Constraint("DistanceX", 1, 1, 1, 2, 570.0))
sketch4.addConstraint(Sketcher.Constraint("DistanceY", 0, 1, 0, 2, 264.0))
sketch4.addConstraint(Sketcher.Constraint("DistanceX", -1, 1, 0, 2, 350.0))
pocket3 = doc.addObject("PartDesign::Pocket", "Pocket002")
body.addObject(pocket3)
pocket3.Profile = sketch4
pocket3.Length = 20
pocket3.Reversed = True

# Sketch on XZ plane
sketch5 = doc.addObject("Sketcher::SketchObject", "Sketch004")
body.addObject(sketch5)
sketch5.AttachmentSupport = (doc.XZ_Plane, [""])
sketch5.MapMode = "FlatFace"
sketch5.AttachmentOffset = App.Placement(Vector(0, 0, -10), App.Rotation())
sketch5.addGeometry(Part.Circle(Vector(10, -254, 0), Vector(0, 0, 1), 3.4), False)
sketch5.addGeometry(Part.Circle(Vector(340, -254, 0), Vector(0, 0, 1), 3.4), False)
sketch5.addGeometry(Part.Circle(Vector(340, -10, 0), Vector(0, 0, 1), 3.4), False)
sketch5.addGeometry(Part.Circle(Vector(10, -10, 0), Vector(0, 0, 1), 3.4), False)
sketch5.addGeometry(Part.Circle(Vector(10, -132, 0), Vector(0, 0, 1), 2.5), False)
sketch5.addGeometry(Part.Circle(Vector(340, -132, 0), Vector(0, 0, 1), 2.5), False)
sketch5.addConstraint(Sketcher.Constraint("Equal", 0, 1))
sketch5.addConstraint(Sketcher.Constraint("Equal", 1, 2))
sketch5.addConstraint(Sketcher.Constraint("Equal", 2, 3))
sketch5.addConstraint(Sketcher.Constraint("Equal", 4, 5))
sketch5.addConstraint(Sketcher.Constraint("Horizontal", 0, 3, 1, 3))
sketch5.addConstraint(Sketcher.Constraint("Horizontal", 2, 3, 3, 3))
sketch5.addConstraint(Sketcher.Constraint("Horizontal", 4, 3, 5, 3))
sketch5.addConstraint(Sketcher.Constraint("Vertical", 1, 3, 2, 3))
sketch5.addConstraint(Sketcher.Constraint("Vertical", 0, 3, 3, 3))
sketch5.addConstraint(Sketcher.Constraint("Vertical", 3, 3, 4, 3))
sketch5.addConstraint(Sketcher.Constraint("Vertical", 2, 3, 5, 3))
sketch5.addConstraint(Sketcher.Constraint("Diameter", 4, 5.0))
sketch5.addConstraint(Sketcher.Constraint("Diameter", 0, 6.8))
sketch5.addConstraint(Sketcher.Constraint("DistanceX", -1, 1, 0, 3, 10.0))
sketch5.addConstraint(Sketcher.Constraint("DistanceY", 0, 3, -1, 1, 254.0))
sketch5.addConstraint(Sketcher.Constraint("DistanceX", -1, 1, 1, 3, 340.0))
sketch5.addConstraint(Sketcher.Constraint("DistanceY", 2, 3, -1, 1, 10.0))
sketch5.addConstraint(Sketcher.Constraint("DistanceY", 4, 3, -1, 1, 132.0))
pocket4 = doc.addObject("PartDesign::Pocket", "Pocket003")
body.addObject(pocket4)
pocket4.Profile = sketch5
pocket4.Length = 20
pocket4.Reversed = True

# Sketch on XZ plane
sketch6 = doc.addObject("Sketcher::SketchObject", "Sketch005")
body.addObject(sketch6)
sketch6.AttachmentSupport = (doc.XZ_Plane, [""])
sketch6.MapMode = "FlatFace"
sketch6.AttachmentOffset = App.Placement(Vector(0, 0, -10), App.Rotation())
sketch6.addGeometry(Part.LineSegment(Vector(0, -264, 0), Vector(0, -259, 0)), False)
sketch6.addGeometry(Part.LineSegment(Vector(0, -259, 0), Vector(350, -259, 0)), False)
sketch6.addGeometry(Part.LineSegment(Vector(350, -259, 0), Vector(350, -264, 0)), False)
sketch6.addGeometry(Part.LineSegment(Vector(350, -264, 0), Vector(0, -264, 0)), False)
sketch6.addGeometry(Part.LineSegment(Vector(0, -5, 0), Vector(0, 0, 0)), False)
sketch6.addGeometry(Part.LineSegment(Vector(0, 0, 0), Vector(350, 0, 0)), False)
sketch6.addGeometry(Part.LineSegment(Vector(350, 0, 0), Vector(350, -5, 0)), False)
sketch6.addGeometry(Part.LineSegment(Vector(350, -5, 0), Vector(0, -5, 0)), False)
sketch6.addConstraint(Sketcher.Constraint("Coincident", 0, 2, 1, 1))
sketch6.addConstraint(Sketcher.Constraint("Coincident", 1, 2, 2, 1))
sketch6.addConstraint(Sketcher.Constraint("Coincident", 2, 2, 3, 1))
sketch6.addConstraint(Sketcher.Constraint("Coincident", 3, 2, 0, 1))
sketch6.addConstraint(Sketcher.Constraint("Coincident", 4, 2, 5, 1))
sketch6.addConstraint(Sketcher.Constraint("Coincident", 5, 2, 6, 1))
sketch6.addConstraint(Sketcher.Constraint("Coincident", 6, 2, 7, 1))
sketch6.addConstraint(Sketcher.Constraint("Coincident", 7, 2, 4, 1))
sketch6.addConstraint(Sketcher.Constraint("Vertical", 0))
sketch6.addConstraint(Sketcher.Constraint("Horizontal", 1))
sketch6.addConstraint(Sketcher.Constraint("Vertical", 2))
sketch6.addConstraint(Sketcher.Constraint("Horizontal", 3))
sketch6.addConstraint(Sketcher.Constraint("Vertical", 4))
sketch6.addConstraint(Sketcher.Constraint("Horizontal", 5))
sketch6.addConstraint(Sketcher.Constraint("Vertical", 6))
sketch6.addConstraint(Sketcher.Constraint("Horizontal", 7))
sketch6.addConstraint(Sketcher.Constraint("Coincident", 4, 2, -1, 1))
sketch6.addConstraint(Sketcher.Constraint("PointOnObject", 0, 2, -2))
sketch6.addConstraint(Sketcher.Constraint("Vertical", 2, 2, 5, 2))
sketch6.addConstraint(Sketcher.Constraint("Equal", 2, 4))
sketch6.addConstraint(Sketcher.Constraint("DistanceX", 1, 1, 1, 2, 350.0))
sketch6.addConstraint(Sketcher.Constraint("DistanceY", 0, 1, 0, 2, 5.0))
sketch6.addConstraint(Sketcher.Constraint("DistanceY", 0, 2, -1, 1, 259.0))
pocket5 = doc.addObject("PartDesign::Pocket", "Pocket004")
body.addObject(pocket5)
pocket5.Profile = sketch6
pocket5.Length = 10
pocket5.Reversed = True

# Sketch on XZ plane
sketch7 = doc.addObject("Sketcher::SketchObject", "Sketch006")
body.addObject(sketch7)
sketch7.AttachmentSupport = (doc.XZ_Plane, [""])
sketch7.MapMode = "FlatFace"
sketch7.AttachmentOffset = App.Placement(Vector(0, 0, -10), App.Rotation())
sketch7.addGeometry(Part.Circle(Vector(10, -67.5, 0), Vector(0, 0, 1), 1.2), False)
sketch7.addGeometry(Part.Circle(Vector(10, -42.5, 0), Vector(0, 0, 1), 1.2), False)
sketch7.addGeometry(Part.Circle(Vector(304, -67.5, 0), Vector(0, 0, 1), 1.2), False)
sketch7.addGeometry(Part.Circle(Vector(304, -42.5, 0), Vector(0, 0, 1), 1.2), False)
sketch7.addGeometry(Part.Circle(Vector(73, -55, 0), Vector(0, 0, 1), 1.2), False)
sketch7.addGeometry(Part.Circle(Vector(129, -55, 0), Vector(0, 0, 1), 1.2), False)
sketch7.addGeometry(Part.Circle(Vector(185, -55, 0), Vector(0, 0, 1), 1.2), False)
sketch7.addGeometry(Part.Circle(Vector(241, -55, 0), Vector(0, 0, 1), 1.2), False)
sketch7.addGeometry(Part.Circle(Vector(10, -55, 0), Vector(0, 0, 1), 2), False)
sketch7.addGeometry(Part.Circle(Vector(304, -55, 0), Vector(0, 0, 1), 2), False)
sketch7.addConstraint(Sketcher.Constraint("Equal", 0, 1))
sketch7.addConstraint(Sketcher.Constraint("Equal", 1, 2))
sketch7.addConstraint(Sketcher.Constraint("Equal", 2, 3))
sketch7.addConstraint(Sketcher.Constraint("Equal", 3, 4))
sketch7.addConstraint(Sketcher.Constraint("Equal", 4, 5))
sketch7.addConstraint(Sketcher.Constraint("Equal", 5, 6))
sketch7.addConstraint(Sketcher.Constraint("Equal", 6, 7))
sketch7.addConstraint(Sketcher.Constraint("Equal", 8, 9))
sketch7.addConstraint(Sketcher.Constraint("Horizontal", 0, 3, 2, 3))
sketch7.addConstraint(Sketcher.Constraint("Horizontal", 1, 3, 3, 3))
sketch7.addConstraint(Sketcher.Constraint("Horizontal", 4, 3, 5, 3))
sketch7.addConstraint(Sketcher.Constraint("Horizontal", 5, 3, 6, 3))
sketch7.addConstraint(Sketcher.Constraint("Horizontal", 6, 3, 7, 3))
sketch7.addConstraint(Sketcher.Constraint("Horizontal", 7, 3, 8, 3))
sketch7.addConstraint(Sketcher.Constraint("Horizontal", 8, 3, 9, 3))
sketch7.addConstraint(Sketcher.Constraint("Vertical", 0, 3, 1, 3))
sketch7.addConstraint(Sketcher.Constraint("Vertical", 2, 3, 3, 3))
sketch7.addConstraint(Sketcher.Constraint("Vertical", 1, 3, 8, 3))
sketch7.addConstraint(Sketcher.Constraint("Vertical", 3, 3, 9, 3))
sketch7.addConstraint(Sketcher.Constraint("Diameter", 8, 4.0))
sketch7.addConstraint(Sketcher.Constraint("Diameter", 0, 2.5))
sketch7.addConstraint(Sketcher.Constraint("DistanceX", -1, 1, 0, 3, 10.0))
sketch7.addConstraint(Sketcher.Constraint("DistanceX", -1, 1, 2, 3, 304.0))
sketch7.addConstraint(Sketcher.Constraint("DistanceX", -1, 1, 4, 3, 73.0))
sketch7.addConstraint(Sketcher.Constraint("DistanceY", 4, 3, -1, 1, 55.0))
sketch7.addConstraint(Sketcher.Constraint("DistanceX", -1, 1, 5, 3, 129.0))
sketch7.addConstraint(Sketcher.Constraint("DistanceX", -1, 1, 6, 3, 185.0))
sketch7.addConstraint(Sketcher.Constraint("DistanceX", -1, 1, 7, 3, 241.0))
sketch7.addConstraint(Sketcher.Constraint("DistanceY", 0, 3, 1, 3, 25.0))
sketch7.addConstraint(Sketcher.Constraint("DistanceY", 0, 3, -1, 1, 67.5))
pocket6 = doc.addObject("PartDesign::Pocket", "Pocket005")
body.addObject(pocket6)
pocket6.Profile = sketch7
pocket6.Length = 10
pocket6.Reversed = True

# Sketch on XZ plane
sketch8 = doc.addObject("Sketcher::SketchObject", "Sketch007")
body.addObject(sketch8)
sketch8.AttachmentSupport = (doc.XZ_Plane, [""])
sketch8.MapMode = "FlatFace"
sketch8.AttachmentOffset = App.Placement(Vector(0, 0, -10), App.Rotation())
sketch8.addGeometry(Part.Circle(Vector(235, -78, 0), Vector(0, 0, 1), 1.5), False)
sketch8.addGeometry(Part.Circle(Vector(235, -16.5, 0), Vector(0, 0, 1), 1.5), False)
sketch8.addGeometry(Part.Circle(Vector(294.5, -39.8, 0), Vector(0, 0, 1), 1.5), False)
sketch8.addGeometry(Part.Circle(Vector(314.5, -54.8, 0), Vector(0, 0, 1), 1.5), False)
sketch8.addGeometry(Part.Circle(Vector(331, -16.5, 0), Vector(0, 0, 1), 1.5), False)
sketch8.addGeometry(Part.Circle(Vector(331, -47.2, 0), Vector(0, 0, 1), 2), False)
sketch8.addGeometry(Part.Circle(Vector(331, -78, 0), Vector(0, 0, 1), 1.5), False)
sketch8.addGeometry(Part.Circle(Vector(235, -47.2, 0), Vector(0, 0, 1), 2), False)
sketch8.addGeometry(Part.Circle(Vector(294.5, -54.8, 0), Vector(0, 0, 1), 1.5), False)
sketch8.addGeometry(Part.Circle(Vector(314.5, -39.8, 0), Vector(0, 0, 1), 1.5), False)
sketch8.addConstraint(Sketcher.Constraint("Equal", 0, 1))
sketch8.addConstraint(Sketcher.Constraint("Equal", 1, 2))
sketch8.addConstraint(Sketcher.Constraint("Equal", 2, 3))
sketch8.addConstraint(Sketcher.Constraint("Equal", 3, 4))
sketch8.addConstraint(Sketcher.Constraint("Equal", 4, 6))
sketch8.addConstraint(Sketcher.Constraint("Equal", 5, 7))
sketch8.addConstraint(Sketcher.Constraint("Equal", 6, 8))
sketch8.addConstraint(Sketcher.Constraint("Equal", 8, 9))
sketch8.addConstraint(Sketcher.Constraint("Horizontal", 1, 3, 4, 3))
sketch8.addConstraint(Sketcher.Constraint("Horizontal", 0, 3, 6, 3))
sketch8.addConstraint(Sketcher.Constraint("Horizontal", 5, 3, 7, 3))
sketch8.addConstraint(Sketcher.Constraint("Horizontal", 3, 3, 8, 3))
sketch8.addConstraint(Sketcher.Constraint("Horizontal", 2, 3, 9, 3))
sketch8.addConstraint(Sketcher.Constraint("Vertical", 0, 3, 1, 3))
sketch8.addConstraint(Sketcher.Constraint("Vertical", 4, 3, 5, 3))
sketch8.addConstraint(Sketcher.Constraint("Vertical", 5, 3, 6, 3))
sketch8.addConstraint(Sketcher.Constraint("Vertical", 1, 3, 7, 3))
sketch8.addConstraint(Sketcher.Constraint("Vertical", 2, 3, 8, 3))
sketch8.addConstraint(Sketcher.Constraint("Vertical", 3, 3, 9, 3))
sketch8.addConstraint(Sketcher.Constraint("Diameter", 0, 3.0))
sketch8.addConstraint(Sketcher.Constraint("Diameter", 5, 4.0))
sketch8.addConstraint(Sketcher.Constraint("DistanceX", -1, 1, 0, 3, 235.0))
sketch8.addConstraint(Sketcher.Constraint("DistanceX", -1, 1, 4, 3, 331.0))
sketch8.addConstraint(Sketcher.Constraint("DistanceX", 2, 3, 3, 3, 20.0))
sketch8.addConstraint(Sketcher.Constraint("DistanceY", 3, 3, 2, 3, 15.0))
sketch8.addConstraint(Sketcher.Constraint("DistanceY", 3, 3, 5, 3, 7.5))
sketch8.addConstraint(Sketcher.Constraint("DistanceY", 2, 3, -1, 1, 39.75))
sketch8.addConstraint(Sketcher.Constraint("DistanceX", -1, 1, 2, 3, 294.500011))
sketch8.addConstraint(Sketcher.Constraint("DistanceY", 0, 3, -1, 1, 78.013636))
sketch8.addConstraint(Sketcher.Constraint("DistanceY", 1, 3, -1, 1, 16.486364))
pocket7 = doc.addObject("PartDesign::Pocket", "Pocket006")
body.addObject(pocket7)
pocket7.Profile = sketch8
pocket7.Length = 10
pocket7.Reversed = True

doc.recompute()
